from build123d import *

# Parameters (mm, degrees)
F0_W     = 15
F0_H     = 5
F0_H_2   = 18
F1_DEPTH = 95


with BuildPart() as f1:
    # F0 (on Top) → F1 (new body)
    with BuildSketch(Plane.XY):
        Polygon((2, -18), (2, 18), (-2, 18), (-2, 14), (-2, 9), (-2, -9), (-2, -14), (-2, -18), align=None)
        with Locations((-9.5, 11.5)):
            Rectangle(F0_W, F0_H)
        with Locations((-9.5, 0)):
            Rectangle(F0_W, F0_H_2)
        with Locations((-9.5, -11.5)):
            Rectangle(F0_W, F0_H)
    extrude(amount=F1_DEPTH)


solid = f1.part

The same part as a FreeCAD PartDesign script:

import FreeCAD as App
import Part
import Sketcher

V = App.Vector


def add_polygon(sketch, points):
    """Adds a closed chain of lines whose ends are joined by coincident constraints."""
    first, n = sketch.GeometryCount, len(points)
    for a, b in zip(points, points[1:] + points[:1]):
        sketch.addGeometry(Part.LineSegment(App.Vector(*a, 0), App.Vector(*b, 0)), False)
    for i in range(n):
        sketch.addConstraint(Sketcher.Constraint("Coincident", first + i, 2, first + (i + 1) % n, 1))

doc = App.newDocument("Part")
body = doc.addObject("PartDesign::Body", "Body")

sketch1 = body.newObject("Sketcher::SketchObject", "Sketch")
sketch1.AttachmentSupport = (doc.getObject("XY_Plane"), [""])
sketch1.MapMode = "FlatFace"
add_polygon(sketch1, [(2, -18), (2, 18), (-2, 18), (-2, 14), (-17, 14), (-17, -14), (-2, -14), (-2, -18)])
sketch1.addConstraint([
    Sketcher.Constraint("Vertical", 0),
    Sketcher.Constraint("Horizontal", 1),
    Sketcher.Constraint("Vertical", 2),
    Sketcher.Constraint("Horizontal", 3),
    Sketcher.Constraint("Vertical", 4),
    Sketcher.Constraint("Horizontal", 5),
    Sketcher.Constraint("Vertical", 6),
    Sketcher.Constraint("Horizontal", 7),
    Sketcher.Constraint("Symmetric", 0, 2, 6, 2, -1, 1),
    Sketcher.Constraint("Symmetric", 2, 2, 5, 2, -1),
    Sketcher.Constraint("Equal", 7, 2),
    Sketcher.Constraint("DistanceX", 1, 2, 1, 1, 4.0),
    Sketcher.Constraint("DistanceX", 3, 2, 3, 1, 15.0),
    Sketcher.Constraint("DistanceY", 0, 1, 0, 2, 36.0),
])
pad1 = body.newObject("PartDesign::Pad", "Pad")
pad1.Profile = sketch1
pad1.Length = 95

doc.recompute()
